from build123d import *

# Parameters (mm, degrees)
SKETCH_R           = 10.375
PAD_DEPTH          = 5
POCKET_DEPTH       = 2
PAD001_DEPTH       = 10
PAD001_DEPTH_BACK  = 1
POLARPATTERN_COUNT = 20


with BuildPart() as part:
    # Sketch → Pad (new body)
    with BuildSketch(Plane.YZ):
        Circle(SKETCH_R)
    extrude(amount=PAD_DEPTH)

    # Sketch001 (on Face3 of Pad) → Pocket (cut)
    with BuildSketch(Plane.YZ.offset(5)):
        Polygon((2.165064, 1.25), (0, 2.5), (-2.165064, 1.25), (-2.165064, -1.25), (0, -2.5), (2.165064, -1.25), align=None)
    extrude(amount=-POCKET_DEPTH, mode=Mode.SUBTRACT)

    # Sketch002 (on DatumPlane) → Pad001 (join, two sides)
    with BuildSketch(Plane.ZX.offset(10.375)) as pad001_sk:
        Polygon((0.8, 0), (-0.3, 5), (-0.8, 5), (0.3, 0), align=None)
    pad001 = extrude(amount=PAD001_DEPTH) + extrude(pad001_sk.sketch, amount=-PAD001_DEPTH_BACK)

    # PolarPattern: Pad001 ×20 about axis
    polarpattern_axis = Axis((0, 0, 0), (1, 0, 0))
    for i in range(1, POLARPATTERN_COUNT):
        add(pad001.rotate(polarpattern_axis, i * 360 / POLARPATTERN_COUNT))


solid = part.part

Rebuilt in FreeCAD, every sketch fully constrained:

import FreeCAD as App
import Part
import Sketcher
from FreeCAD import Vector
Q = App.Units.Quantity

doc = App.newDocument("Part")
body = doc.addObject("PartDesign::Body", "Body")

sketch1 = body.newObject("Sketcher::SketchObject", "Sketch")
sketch1.AttachmentSupport = (doc.getObject("YZ_Plane"), [""])
sketch1.MapMode = "FlatFace"
sketch1.addGeometry(Part.Circle(Vector(0, 0, 0), Vector(0, 0, 1), 10), False)
sketch1.addConstraint([
    Sketcher.Constraint("Coincident", 0, 3, -1, 1),
    Sketcher.Constraint("Diameter", 0, 20.75),
])
pad1 = body.newObject("PartDesign::Pad", "Pad")
pad1.Profile = sketch1
pad1.Length = 5

sketch2 = body.newObject("Sketcher::SketchObject", "Sketch001")
sketch2.AttachmentSupport = (doc.getObject("YZ_Plane"), [""])
sketch2.MapMode = "FlatFace"
sketch2.AttachmentOffset = App.Placement(Vector(0, 0, 5), App.Rotation())
sketch2.addGeometry([
    Part.LineSegment(Vector(2.2, 1.2, 0), Vector(0, 2.5, 0)),
    Part.LineSegment(Vector(0, 2.5, 0), Vector(-2.2, 1.2, 0)),
    Part.LineSegment(Vector(-2.2, 1.2, 0), Vector(-2.2, -1.2, 0)),
    Part.LineSegment(Vector(-2.2, -1.2, 0), Vector(0, -2.5, 0)),
    Part.LineSegment(Vector(0, -2.5, 0), Vector(2.2, -1.2, 0)),
    Part.LineSegment(Vector(2.2, -1.2, 0), Vector(2.2, 1.2, 0)),
], False)
sketch2.addConstraint([
    Sketcher.Constraint("Coincident", 0, 2, 1, 1),
    Sketcher.Constraint("Coincident", 1, 2, 2, 1),
    Sketcher.Constraint("Coincident", 2, 2, 3, 1),
    Sketcher.Constraint("Coincident", 3, 2, 4, 1),
    Sketcher.Constraint("Coincident", 4, 2, 5, 1),
    Sketcher.Constraint("Coincident", 5, 2, 0, 1),
    Sketcher.Constraint("Vertical", 2),
    Sketcher.Constraint("Vertical", 5),
    Sketcher.Constraint("Symmetric", 0, 2, 3, 2, -1, 1),
    Sketcher.Constraint("Symmetric", 1, 2, 4, 2, -1, 1),
    Sketcher.Constraint("PointOnObject", 0, 2, -2),
    Sketcher.Constraint("Parallel", 0, 3),
    Sketcher.Constraint("Horizontal", 2, 2, 4, 2),
    Sketcher.Constraint("Angle", 0, Q("150.000006 deg")),
    Sketcher.Constraint("DistanceY", 2, 2, 2, 1, 2.5),
    Sketcher.Constraint("DistanceY", 3, 2, 0, 2, 5.0),
])
pocket1 = body.newObject("PartDesign::Pocket", "Pocket")
pocket1.Profile = sketch2
pocket1.Length = 2

sketch3 = body.newObject("Sketcher::SketchObject", "Sketch002")
sketch3.AttachmentSupport = (doc.getObject("XZ_Plane"), [""])
sketch3.MapMode = "FlatFace"
sketch3.AttachmentOffset = App.Placement(Vector(0, 0, -10.375), App.Rotation())
sketch3.addGeometry([
    Part.LineSegment(Vector(0, 0.8, 0), Vector(5, -0.3, 0)),
    Part.LineSegment(Vector(5, -0.3, 0), Vector(5, -0.8, 0)),
    Part.LineSegment(Vector(5, -0.8, 0), Vector(0, 0.3, 0)),
    Part.LineSegment(Vector(0, 0.3, 0), Vector(0, 0.8, 0)),
], False)
sketch3.addConstraint([
    Sketcher.Constraint("Coincident", 0, 2, 1, 1),
    Sketcher.Constraint("Coincident", 1, 2, 2, 1),
    Sketcher.Constraint("Coincident", 2, 2, 3, 1),
    Sketcher.Constraint("Coincident", 3, 2, 0, 1),
    Sketcher.Constraint("Vertical", 1),
    Sketcher.Constraint("Vertical", 3),
    Sketcher.Constraint("PointOnObject", 2, 2, -2),
    Sketcher.Constraint("Parallel", 0, 2),
    Sketcher.Constraint("DistanceY", 1, 2, 1, 1, 0.5),
    Sketcher.Constraint("DistanceX", -1, 1, 0, 2, 5.0),
    Sketcher.Constraint("DistanceY", 0, 2, -1, 1, 0.3),
    Sketcher.Constraint("DistanceY", -1, 1, 2, 2, 0.3),
])
pad2 = body.newObject("PartDesign::Pad", "Pad001")
pad2.Profile = sketch3
pad2.Type = "TwoLengths"
pad2.Length = 10
pad2.Length2 = 1
pad2.Reversed = True
doc.recompute()

polarpattern = body.newObject("PartDesign::PolarPattern", "PolarPattern")
polarpattern.Originals = [pad2]
polarpattern.Axis = (doc.getObject("X_Axis"), [""])
polarpattern.Angle = 360
polarpattern.Occurrences = 20
body.Tip = polarpattern

doc.recompute()
